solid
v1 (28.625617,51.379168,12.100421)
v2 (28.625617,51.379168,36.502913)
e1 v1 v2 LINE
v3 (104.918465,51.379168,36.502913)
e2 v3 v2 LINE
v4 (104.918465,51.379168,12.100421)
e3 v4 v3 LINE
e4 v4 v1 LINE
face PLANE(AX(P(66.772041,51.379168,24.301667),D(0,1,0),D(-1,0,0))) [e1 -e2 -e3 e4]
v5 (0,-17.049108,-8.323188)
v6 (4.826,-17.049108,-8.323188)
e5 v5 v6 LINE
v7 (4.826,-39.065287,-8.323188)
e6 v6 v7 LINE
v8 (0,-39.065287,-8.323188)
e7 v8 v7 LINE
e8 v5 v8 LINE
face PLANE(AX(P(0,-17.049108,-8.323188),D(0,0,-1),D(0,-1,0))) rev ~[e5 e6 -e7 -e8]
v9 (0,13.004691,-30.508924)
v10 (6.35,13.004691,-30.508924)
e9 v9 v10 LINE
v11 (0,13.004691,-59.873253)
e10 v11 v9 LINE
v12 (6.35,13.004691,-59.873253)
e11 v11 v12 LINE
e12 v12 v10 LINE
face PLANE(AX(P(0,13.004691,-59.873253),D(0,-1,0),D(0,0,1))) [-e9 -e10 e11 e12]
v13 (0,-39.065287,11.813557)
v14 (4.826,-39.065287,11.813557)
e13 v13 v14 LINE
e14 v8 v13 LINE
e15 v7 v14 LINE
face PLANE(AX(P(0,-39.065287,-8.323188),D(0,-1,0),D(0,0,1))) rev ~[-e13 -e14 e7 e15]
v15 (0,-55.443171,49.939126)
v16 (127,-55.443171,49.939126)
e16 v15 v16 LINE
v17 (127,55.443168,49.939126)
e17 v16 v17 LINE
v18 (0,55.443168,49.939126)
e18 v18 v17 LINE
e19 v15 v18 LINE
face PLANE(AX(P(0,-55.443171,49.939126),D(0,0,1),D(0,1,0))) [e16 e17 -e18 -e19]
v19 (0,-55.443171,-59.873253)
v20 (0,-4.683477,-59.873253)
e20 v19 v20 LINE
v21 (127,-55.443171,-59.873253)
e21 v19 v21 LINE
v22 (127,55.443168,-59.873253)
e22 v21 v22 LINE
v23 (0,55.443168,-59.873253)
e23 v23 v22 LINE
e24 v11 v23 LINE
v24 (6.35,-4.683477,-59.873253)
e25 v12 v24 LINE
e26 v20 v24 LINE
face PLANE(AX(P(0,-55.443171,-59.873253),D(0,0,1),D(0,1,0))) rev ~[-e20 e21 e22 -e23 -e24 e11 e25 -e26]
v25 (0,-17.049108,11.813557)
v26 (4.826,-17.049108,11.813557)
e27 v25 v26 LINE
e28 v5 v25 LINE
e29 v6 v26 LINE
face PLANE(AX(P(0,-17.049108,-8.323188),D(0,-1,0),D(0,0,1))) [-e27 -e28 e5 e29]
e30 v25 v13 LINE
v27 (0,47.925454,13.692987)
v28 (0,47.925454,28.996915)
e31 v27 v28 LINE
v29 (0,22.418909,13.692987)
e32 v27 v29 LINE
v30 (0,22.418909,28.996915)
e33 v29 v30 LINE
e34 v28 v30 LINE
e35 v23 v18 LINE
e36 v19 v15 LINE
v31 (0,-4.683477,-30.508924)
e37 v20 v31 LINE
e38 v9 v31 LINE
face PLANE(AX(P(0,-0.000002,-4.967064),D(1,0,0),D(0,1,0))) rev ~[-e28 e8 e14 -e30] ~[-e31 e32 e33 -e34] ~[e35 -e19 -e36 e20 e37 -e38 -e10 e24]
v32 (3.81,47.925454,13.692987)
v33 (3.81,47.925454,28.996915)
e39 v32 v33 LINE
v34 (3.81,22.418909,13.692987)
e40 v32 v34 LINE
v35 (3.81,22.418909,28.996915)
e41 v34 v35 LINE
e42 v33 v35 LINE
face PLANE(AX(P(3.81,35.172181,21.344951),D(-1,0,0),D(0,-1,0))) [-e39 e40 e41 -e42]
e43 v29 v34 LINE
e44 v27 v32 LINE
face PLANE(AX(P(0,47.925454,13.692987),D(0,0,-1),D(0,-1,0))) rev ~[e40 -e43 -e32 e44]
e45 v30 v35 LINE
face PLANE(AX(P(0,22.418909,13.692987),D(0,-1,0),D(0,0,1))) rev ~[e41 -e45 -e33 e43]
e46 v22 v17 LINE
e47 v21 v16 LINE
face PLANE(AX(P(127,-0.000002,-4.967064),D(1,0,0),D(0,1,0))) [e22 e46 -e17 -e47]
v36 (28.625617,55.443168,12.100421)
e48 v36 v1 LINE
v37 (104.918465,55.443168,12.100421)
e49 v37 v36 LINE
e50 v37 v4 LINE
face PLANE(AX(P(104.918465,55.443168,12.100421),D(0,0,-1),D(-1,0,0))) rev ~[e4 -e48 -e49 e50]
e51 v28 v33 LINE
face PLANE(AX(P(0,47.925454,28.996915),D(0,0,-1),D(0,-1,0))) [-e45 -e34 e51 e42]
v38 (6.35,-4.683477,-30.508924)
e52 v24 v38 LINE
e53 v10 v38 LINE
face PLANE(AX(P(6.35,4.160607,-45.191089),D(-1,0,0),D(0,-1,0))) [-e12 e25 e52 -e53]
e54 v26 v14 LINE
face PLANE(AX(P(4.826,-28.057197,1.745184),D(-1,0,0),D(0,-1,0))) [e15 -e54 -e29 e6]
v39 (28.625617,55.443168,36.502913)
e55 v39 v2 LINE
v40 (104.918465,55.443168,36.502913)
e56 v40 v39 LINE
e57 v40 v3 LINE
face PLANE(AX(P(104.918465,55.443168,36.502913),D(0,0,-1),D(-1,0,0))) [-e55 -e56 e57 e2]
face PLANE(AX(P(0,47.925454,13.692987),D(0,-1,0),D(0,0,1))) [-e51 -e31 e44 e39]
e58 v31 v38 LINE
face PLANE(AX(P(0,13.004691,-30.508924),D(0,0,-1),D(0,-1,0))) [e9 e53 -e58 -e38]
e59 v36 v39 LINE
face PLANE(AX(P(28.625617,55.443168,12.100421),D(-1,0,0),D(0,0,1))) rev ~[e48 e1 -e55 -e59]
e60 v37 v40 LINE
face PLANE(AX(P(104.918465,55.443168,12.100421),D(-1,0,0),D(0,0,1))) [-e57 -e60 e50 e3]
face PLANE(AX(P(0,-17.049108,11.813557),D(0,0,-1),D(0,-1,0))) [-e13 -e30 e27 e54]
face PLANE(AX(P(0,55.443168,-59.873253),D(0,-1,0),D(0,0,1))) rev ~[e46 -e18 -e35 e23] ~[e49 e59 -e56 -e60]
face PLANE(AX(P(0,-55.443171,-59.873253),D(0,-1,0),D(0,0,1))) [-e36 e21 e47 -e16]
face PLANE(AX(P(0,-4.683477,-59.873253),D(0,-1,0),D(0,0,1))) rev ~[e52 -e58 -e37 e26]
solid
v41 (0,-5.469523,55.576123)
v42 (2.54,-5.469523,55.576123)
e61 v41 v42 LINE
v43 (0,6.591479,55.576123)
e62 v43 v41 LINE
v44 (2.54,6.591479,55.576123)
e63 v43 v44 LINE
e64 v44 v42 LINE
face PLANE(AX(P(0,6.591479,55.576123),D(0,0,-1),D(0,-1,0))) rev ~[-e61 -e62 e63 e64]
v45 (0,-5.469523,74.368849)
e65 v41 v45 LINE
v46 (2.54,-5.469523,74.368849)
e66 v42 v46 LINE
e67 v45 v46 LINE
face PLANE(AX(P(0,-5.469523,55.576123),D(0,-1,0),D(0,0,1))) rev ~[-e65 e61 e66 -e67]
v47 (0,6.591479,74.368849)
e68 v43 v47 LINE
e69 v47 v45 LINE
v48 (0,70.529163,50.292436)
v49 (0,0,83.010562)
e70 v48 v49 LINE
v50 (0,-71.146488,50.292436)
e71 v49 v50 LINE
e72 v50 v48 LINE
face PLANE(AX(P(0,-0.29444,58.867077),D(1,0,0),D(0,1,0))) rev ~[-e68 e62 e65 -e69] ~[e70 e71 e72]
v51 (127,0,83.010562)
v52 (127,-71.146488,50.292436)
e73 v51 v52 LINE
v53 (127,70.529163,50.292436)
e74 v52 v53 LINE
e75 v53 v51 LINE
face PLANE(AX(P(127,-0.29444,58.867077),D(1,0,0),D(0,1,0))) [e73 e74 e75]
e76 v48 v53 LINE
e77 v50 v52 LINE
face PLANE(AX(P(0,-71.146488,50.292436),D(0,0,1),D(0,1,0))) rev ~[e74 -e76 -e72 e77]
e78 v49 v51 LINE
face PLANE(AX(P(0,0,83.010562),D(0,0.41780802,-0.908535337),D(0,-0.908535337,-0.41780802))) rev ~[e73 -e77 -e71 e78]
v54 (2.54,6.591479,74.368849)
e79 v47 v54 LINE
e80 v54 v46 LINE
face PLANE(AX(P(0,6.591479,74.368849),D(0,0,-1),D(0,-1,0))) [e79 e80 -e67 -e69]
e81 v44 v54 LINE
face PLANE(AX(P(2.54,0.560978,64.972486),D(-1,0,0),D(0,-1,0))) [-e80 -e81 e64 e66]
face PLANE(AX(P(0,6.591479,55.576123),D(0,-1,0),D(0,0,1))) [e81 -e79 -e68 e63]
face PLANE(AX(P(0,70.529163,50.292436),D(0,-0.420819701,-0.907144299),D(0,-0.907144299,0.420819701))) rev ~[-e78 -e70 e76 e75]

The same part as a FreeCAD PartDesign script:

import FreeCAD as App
import Part
import Sketcher

V = App.Vector
Q = App.Units.Quantity


def add_polygon(sketch, points):
    """Adds a closed chain of lines whose ends are joined by coincident constraints."""
    first, n = sketch.GeometryCount, len(points)
    for a, b in zip(points, points[1:] + points[:1]):
        sketch.addGeometry(Part.LineSegment(App.Vector(*a, 0), App.Vector(*b, 0)), False)
    for i in range(n):
        sketch.addConstraint(Sketcher.Constraint("Coincident", first + i, 2, first + (i + 1) % n, 1))

doc = App.newDocument("Part")
body = doc.addObject("PartDesign::Body", "Body")

# Sketch on YZ plane
sketch1 = body.newObject("Sketcher::SketchObject", "Sketch")
sketch1.AttachmentSupport = (doc.getObject("YZ_Plane"), [""])
sketch1.MapMode = "FlatFace"
add_polygon(sketch1, [(-55, 50), (-55, -60), (55, -60), (55, 50)])  # lines 0-3
sketch1.addConstraint([
    Sketcher.Constraint("Vertical", 0),
    Sketcher.Constraint("Horizontal", 1),
    Sketcher.Constraint("Vertical", 2),
    Sketcher.Constraint("Horizontal", 3),
    Sketcher.Constraint("DistanceX", 1, 1, 1, 2, 110.886339),
    Sketcher.Constraint("DistanceY", 0, 2, 0, 1, 109.812379),
    Sketcher.Constraint("DistanceX", 0, 2, -1, 1, 55.443171),
    Sketcher.Constraint("DistanceY", 0, 2, -1, 1, 59.873253),
])
pad1 = body.newObject("PartDesign::Pad", "Pad")
pad1.Profile = sketch1
pad1.Length = Q("5 in")

# Sketch on YZ plane
sketch2 = body.newObject("Sketcher::SketchObject", "Sketch001")
sketch2.AttachmentSupport = (doc.getObject("YZ_Plane"), [""])
sketch2.MapMode = "FlatFace"
add_polygon(sketch2, [(13, -31), (13, -60), (-5, -60), (-5, -31)])  # lines 0-3
sketch2.addConstraint([
    Sketcher.Constraint("Vertical", 0),
    Sketcher.Constraint("Horizontal", 1),
    Sketcher.Constraint("Vertical", 2),
    Sketcher.Constraint("Horizontal", 3),
    Sketcher.Constraint("DistanceX", 1, 2, 1, 1, 17.688168),
    Sketcher.Constraint("DistanceY", 0, 2, 0, 1, 29.364329),
    Sketcher.Constraint("DistanceX", -1, 1, 0, 2, 13.004691),
    Sketcher.Constraint("DistanceY", 0, 2, -1, 1, 59.873253),
])
pocket1 = body.newObject("PartDesign::Pocket", "Pocket")
pocket1.Profile = sketch2
pocket1.Length = Q("0.25 in")
pocket1.Reversed = True

# Sketch on YZ plane
sketch3 = body.newObject("Sketcher::SketchObject", "Sketch002")
sketch3.AttachmentSupport = (doc.getObject("YZ_Plane"), [""])
sketch3.MapMode = "FlatFace"
add_polygon(sketch3, [(48, 29), (48, 14), (22, 14), (22, 29)])  # lines 0-3
sketch3.addConstraint([
    Sketcher.Constraint("Vertical", 0),
    Sketcher.Constraint("Horizontal", 1),
    Sketcher.Constraint("Vertical", 2),
    Sketcher.Constraint("Horizontal", 3),
    Sketcher.Constraint("DistanceX", 1, 2, 1, 1, 25.506545),
    Sketcher.Constraint("DistanceY", 0, 2, 0, 1, 15.303927),
    Sketcher.Constraint("DistanceX", -1, 1, 1, 2, 22.418909),
    Sketcher.Constraint("DistanceY", -1, 1, 0, 2, 13.692987),
])
pocket2 = body.newObject("PartDesign::Pocket", "Pocket001")
pocket2.Profile = sketch3
pocket2.Length = Q("0.15 in")
pocket2.Reversed = True

# Sketch on YZ plane
sketch4 = body.newObject("Sketcher::SketchObject", "Sketch003")
sketch4.AttachmentSupport = (doc.getObject("YZ_Plane"), [""])
sketch4.MapMode = "FlatFace"
add_polygon(sketch4, [(-17, 12), (-17, -8), (-39, -8), (-39, 12)])  # lines 0-3
sketch4.addConstraint([
    Sketcher.Constraint("Vertical", 0),
    Sketcher.Constraint("Horizontal", 1),
    Sketcher.Constraint("Vertical", 2),
    Sketcher.Constraint("Horizontal", 3),
    Sketcher.Constraint("DistanceX", 1, 2, 1, 1, 22.016179),
    Sketcher.Constraint("DistanceY", 0, 2, 0, 1, 20.136745),
    Sketcher.Constraint("DistanceX", 0, 2, -1, 1, 17.049108),
    Sketcher.Constraint("DistanceY", 0, 2, -1, 1, 8.323188),
])
pocket3 = body.newObject("PartDesign::Pocket", "Pocket002")
pocket3.Profile = sketch4
pocket3.Length = Q("0.19 in")
pocket3.Reversed = True

# Sketch on XZ plane
sketch5 = body.newObject("Sketcher::SketchObject", "Sketch004")
sketch5.AttachmentSupport = (doc.getObject("XZ_Plane"), [""])
sketch5.MapMode = "FlatFace"
sketch5.AttachmentOffset = App.Placement(V(0, 0, -55.443168), App.Rotation())
add_polygon(sketch5, [(105, 37), (105, 12), (29, 12), (29, 37)])  # lines 0-3
sketch5.addConstraint([
    Sketcher.Constraint("Vertical", 0),
    Sketcher.Constraint("Horizontal", 1),
    Sketcher.Constraint("Vertical", 2),
    Sketcher.Constraint("Horizontal", 3),
    Sketcher.Constraint("DistanceX", 1, 2, 1, 1, 76.292848),
    Sketcher.Constraint("DistanceY", 0, 2, 0, 1, 24.402492),
    Sketcher.Constraint("DistanceY", -1, 1, 0, 2, 12.100421),
    Sketcher.Constraint("DistanceX", -1, 1, 0, 2, 104.918465),
])
pocket4 = body.newObject("PartDesign::Pocket", "Pocket003")
pocket4.Profile = sketch5
pocket4.Length = Q("0.16 in")
pocket4.Reversed = True
body2 = doc.addObject("PartDesign::Body", "Body001")

# Sketch on YZ plane
sketch6 = body2.newObject("Sketcher::SketchObject", "Sketch005")
sketch6.AttachmentSupport = (doc.getObject("YZ_Plane001"), [""])
sketch6.MapMode = "FlatFace"
add_polygon(sketch6, [(-71, 50), (71, 50), (0, 83)])  # lines 0-2
sketch6.addConstraint([
    Sketcher.Constraint("Horizontal", 0),
    Sketcher.Constraint("PointOnObject", 1, 2, -2),
    Sketcher.Constraint("DistanceX", 0, 1, 0, 2, 141.675651),
    Sketcher.Constraint("Distance", 1, 77.74856),
    Sketcher.Constraint("DistanceY", -1, 1, 1, 2, 83.010562),
    Sketcher.Constraint("DistanceX", 2, 2, -1, 1, 71.146488),
])
pad2 = body2.newObject("PartDesign::Pad", "Pad001")
pad2.Profile = sketch6
pad2.Length = Q("5 in")

# Sketch on YZ plane
sketch7 = body2.newObject("Sketcher::SketchObject", "Sketch006")
sketch7.AttachmentSupport = (doc.getObject("YZ_Plane001"), [""])
sketch7.MapMode = "FlatFace"
add_polygon(sketch7, [(7, 74), (7, 56), (-5, 56), (-5, 74)])  # lines 0-3
sketch7.addConstraint([
    Sketcher.Constraint("Vertical", 0),
    Sketcher.Constraint("Horizontal", 1),
    Sketcher.Constraint("Vertical", 2),
    Sketcher.Constraint("Horizontal", 3),
    Sketcher.Constraint("DistanceX", 1, 2, 1, 1, 12.061002),
    Sketcher.Constraint("DistanceY", 0, 2, 0, 1, 18.792726),
    Sketcher.Constraint("DistanceX", -1, 1, 0, 2, 6.591479),
    Sketcher.Constraint("DistanceY", -1, 1, 2, 2, 74.368849),
])
pocket5 = body2.newObject("PartDesign::Pocket", "Pocket004")
pocket5.Profile = sketch7
pocket5.Length = Q("0.1 in")
pocket5.Reversed = True

doc.recompute()
